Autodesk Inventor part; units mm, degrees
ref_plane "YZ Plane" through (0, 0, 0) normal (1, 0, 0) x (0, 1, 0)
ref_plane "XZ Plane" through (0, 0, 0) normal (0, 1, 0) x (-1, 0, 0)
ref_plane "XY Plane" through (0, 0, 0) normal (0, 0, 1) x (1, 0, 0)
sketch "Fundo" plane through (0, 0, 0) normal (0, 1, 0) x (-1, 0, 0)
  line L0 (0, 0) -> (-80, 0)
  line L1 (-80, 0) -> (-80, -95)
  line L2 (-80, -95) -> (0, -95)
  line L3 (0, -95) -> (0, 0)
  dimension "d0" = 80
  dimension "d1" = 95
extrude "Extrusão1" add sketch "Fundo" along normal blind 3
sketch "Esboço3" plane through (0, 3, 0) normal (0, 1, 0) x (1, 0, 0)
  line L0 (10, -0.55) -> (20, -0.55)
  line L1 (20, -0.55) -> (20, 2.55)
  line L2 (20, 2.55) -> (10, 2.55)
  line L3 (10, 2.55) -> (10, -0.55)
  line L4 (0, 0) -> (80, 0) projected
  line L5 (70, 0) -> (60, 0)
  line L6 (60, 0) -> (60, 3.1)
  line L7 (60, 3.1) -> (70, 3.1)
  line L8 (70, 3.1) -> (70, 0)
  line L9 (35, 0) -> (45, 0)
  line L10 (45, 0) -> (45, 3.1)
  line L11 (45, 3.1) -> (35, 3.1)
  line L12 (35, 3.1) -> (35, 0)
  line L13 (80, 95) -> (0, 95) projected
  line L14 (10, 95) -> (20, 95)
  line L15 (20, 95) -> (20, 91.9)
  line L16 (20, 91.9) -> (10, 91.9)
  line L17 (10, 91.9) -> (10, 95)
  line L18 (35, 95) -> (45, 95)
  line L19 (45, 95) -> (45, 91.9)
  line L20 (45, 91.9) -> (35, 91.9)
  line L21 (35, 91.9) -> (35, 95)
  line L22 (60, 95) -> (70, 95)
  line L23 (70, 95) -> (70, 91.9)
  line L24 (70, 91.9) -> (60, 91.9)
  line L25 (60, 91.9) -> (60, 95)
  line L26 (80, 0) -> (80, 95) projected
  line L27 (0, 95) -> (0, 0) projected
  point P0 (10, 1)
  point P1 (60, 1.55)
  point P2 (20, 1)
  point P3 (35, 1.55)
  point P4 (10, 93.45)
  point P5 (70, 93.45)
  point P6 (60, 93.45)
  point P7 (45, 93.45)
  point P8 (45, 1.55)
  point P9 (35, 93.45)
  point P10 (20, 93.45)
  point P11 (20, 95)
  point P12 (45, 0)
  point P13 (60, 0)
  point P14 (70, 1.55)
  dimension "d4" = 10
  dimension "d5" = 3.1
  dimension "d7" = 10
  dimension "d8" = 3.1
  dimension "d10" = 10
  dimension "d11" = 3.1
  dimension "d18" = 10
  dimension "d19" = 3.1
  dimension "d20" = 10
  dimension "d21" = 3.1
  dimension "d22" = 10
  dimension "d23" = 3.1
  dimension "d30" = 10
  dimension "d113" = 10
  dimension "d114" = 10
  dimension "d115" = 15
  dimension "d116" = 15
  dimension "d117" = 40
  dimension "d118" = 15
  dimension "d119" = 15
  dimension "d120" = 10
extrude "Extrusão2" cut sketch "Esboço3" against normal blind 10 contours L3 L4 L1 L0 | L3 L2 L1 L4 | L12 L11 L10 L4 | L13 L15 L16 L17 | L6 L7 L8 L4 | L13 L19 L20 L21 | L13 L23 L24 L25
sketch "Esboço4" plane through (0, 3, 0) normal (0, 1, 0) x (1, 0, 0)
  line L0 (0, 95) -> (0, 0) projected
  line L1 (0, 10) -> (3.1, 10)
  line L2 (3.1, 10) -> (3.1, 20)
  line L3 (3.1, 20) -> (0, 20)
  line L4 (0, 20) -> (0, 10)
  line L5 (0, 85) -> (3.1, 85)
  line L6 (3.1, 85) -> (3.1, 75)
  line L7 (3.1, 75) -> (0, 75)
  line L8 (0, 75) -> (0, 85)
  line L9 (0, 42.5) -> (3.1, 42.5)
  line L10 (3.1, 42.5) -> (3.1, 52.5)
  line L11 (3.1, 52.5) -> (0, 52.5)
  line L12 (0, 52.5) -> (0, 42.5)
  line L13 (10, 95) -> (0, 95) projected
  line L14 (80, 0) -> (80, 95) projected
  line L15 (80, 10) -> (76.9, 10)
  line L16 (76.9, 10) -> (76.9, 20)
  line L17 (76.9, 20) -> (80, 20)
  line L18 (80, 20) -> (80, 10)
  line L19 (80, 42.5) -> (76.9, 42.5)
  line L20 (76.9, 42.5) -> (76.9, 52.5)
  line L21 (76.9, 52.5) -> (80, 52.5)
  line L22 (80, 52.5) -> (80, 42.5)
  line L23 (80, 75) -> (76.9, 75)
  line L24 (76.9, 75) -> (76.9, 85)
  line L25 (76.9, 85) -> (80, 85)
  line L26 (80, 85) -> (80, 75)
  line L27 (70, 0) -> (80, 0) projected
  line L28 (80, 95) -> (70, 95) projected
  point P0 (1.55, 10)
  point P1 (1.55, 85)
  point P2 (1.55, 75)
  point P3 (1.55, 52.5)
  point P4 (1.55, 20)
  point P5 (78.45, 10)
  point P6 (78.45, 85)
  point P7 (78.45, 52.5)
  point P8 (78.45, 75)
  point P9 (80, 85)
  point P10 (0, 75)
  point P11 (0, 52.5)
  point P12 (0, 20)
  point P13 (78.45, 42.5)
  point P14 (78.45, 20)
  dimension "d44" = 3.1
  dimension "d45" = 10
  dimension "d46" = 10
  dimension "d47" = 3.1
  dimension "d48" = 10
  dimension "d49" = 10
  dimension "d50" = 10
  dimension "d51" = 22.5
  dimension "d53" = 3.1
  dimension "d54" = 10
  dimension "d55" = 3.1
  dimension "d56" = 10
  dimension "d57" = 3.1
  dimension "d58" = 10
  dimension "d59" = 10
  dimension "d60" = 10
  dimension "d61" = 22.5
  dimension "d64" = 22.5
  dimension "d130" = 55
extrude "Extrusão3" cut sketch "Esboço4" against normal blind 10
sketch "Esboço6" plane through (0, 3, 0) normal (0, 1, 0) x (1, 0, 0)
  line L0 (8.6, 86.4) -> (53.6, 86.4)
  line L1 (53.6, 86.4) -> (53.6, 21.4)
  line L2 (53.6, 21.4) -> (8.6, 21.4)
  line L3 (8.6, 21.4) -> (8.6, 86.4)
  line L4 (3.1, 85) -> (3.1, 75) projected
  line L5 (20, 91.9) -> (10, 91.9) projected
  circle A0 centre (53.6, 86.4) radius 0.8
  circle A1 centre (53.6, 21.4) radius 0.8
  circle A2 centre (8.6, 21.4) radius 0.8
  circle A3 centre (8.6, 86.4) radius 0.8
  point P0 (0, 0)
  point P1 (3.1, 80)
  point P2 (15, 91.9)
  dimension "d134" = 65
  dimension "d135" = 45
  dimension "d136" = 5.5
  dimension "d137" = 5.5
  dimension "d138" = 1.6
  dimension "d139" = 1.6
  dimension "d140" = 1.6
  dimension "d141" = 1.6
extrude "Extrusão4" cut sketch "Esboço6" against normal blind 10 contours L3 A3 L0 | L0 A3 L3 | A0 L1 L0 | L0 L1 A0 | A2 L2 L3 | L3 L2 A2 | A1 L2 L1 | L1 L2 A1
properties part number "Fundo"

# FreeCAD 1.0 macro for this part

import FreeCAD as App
import Part
import Sketcher
from FreeCAD import Vector


def add_polygon(sketch, points):
    """Adds a closed chain of lines whose ends are joined by coincident constraints."""
    first, n = sketch.GeometryCount, len(points)
    for a, b in zip(points, points[1:] + points[:1]):
        sketch.addGeometry(Part.LineSegment(App.Vector(*a, 0), App.Vector(*b, 0)), False)
    for i in range(n):
        sketch.addConstraint(Sketcher.Constraint("Coincident", first + i, 2, first + (i + 1) % n, 1))

doc = App.newDocument("Part")
body = doc.addObject("PartDesign::Body", "Body")

sketch1 = body.newObject("Sketcher::SketchObject", "Sketch")
sketch1.AttachmentSupport = (doc.getObject("XZ_Plane"), [""])
sketch1.MapMode = "FlatFace"
add_polygon(sketch1, [(0, -95), (0, 0), (80, 0), (80, -95)])
sketch1.addConstraint(Sketcher.Constraint("Vertical", 0))
sketch1.addConstraint(Sketcher.Constraint("Horizontal", 1))
sketch1.addConstraint(Sketcher.Constraint("Vertical", 2))
sketch1.addConstraint(Sketcher.Constraint("Horizontal", 3))
sketch1.addConstraint(Sketcher.Constraint("Coincident", 0, 2, -1, 1))
sketch1.addConstraint(Sketcher.Constraint("DistanceX", 1, 1, 1, 2, 80.0))
sketch1.addConstraint(Sketcher.Constraint("DistanceY", 0, 1, 0, 2, 95.0))
pad1 = body.newObject("PartDesign::Pad", "Pad")
pad1.Profile = sketch1
pad1.Length = 3
pad1.Reversed = True

sketch2 = body.newObject("Sketcher::SketchObject", "Sketch001")
sketch2.AttachmentSupport = (doc.getObject("XZ_Plane"), [""])
sketch2.MapMode = "FlatFace"
sketch2.AttachmentOffset = App.Placement(Vector(0, 0, -3), App.Rotation())
add_polygon(sketch2, [(10, 0.55), (20, 0.55), (20, -2.55), (10, -2.55)])
add_polygon(sketch2, [(35, -3.1), (35, 0), (45, 0), (45, -3.1)])
add_polygon(sketch2, [(20, -95), (10, -95), (10, -91.9), (20, -91.9)])
add_polygon(sketch2, [(60, -3.1), (60, 0), (70, 0), (70, -3.1)])
add_polygon(sketch2, [(45, -95), (35, -95), (35, -91.9), (45, -91.9)])
add_polygon(sketch2, [(70, -95), (60, -95), (60, -91.9), (70, -91.9)])
sketch2.addConstraint(Sketcher.Constraint("Horizontal", 0))
sketch2.addConstraint(Sketcher.Constraint("Vertical", 1))
sketch2.addConstraint(Sketcher.Constraint("Horizontal", 2))
sketch2.addConstraint(Sketcher.Constraint("Vertical", 3))
sketch2.addConstraint(Sketcher.Constraint("Vertical", 4))
sketch2.addConstraint(Sketcher.Constraint("Horizontal", 5))
sketch2.addConstraint(Sketcher.Constraint("Vertical", 6))
sketch2.addConstraint(Sketcher.Constraint("Horizontal", 7))
sketch2.addConstraint(Sketcher.Constraint("Horizontal", 8))
sketch2.addConstraint(Sketcher.Constraint("Vertical", 9))
sketch2.addConstraint(Sketcher.Constraint("Horizontal", 10))
sketch2.addConstraint(Sketcher.Constraint("Vertical", 11))
sketch2.addConstraint(Sketcher.Constraint("Vertical", 12))
sketch2.addConstraint(Sketcher.Constraint("Horizontal", 13))
sketch2.addConstraint(Sketcher.Constraint("Vertical", 14))
sketch2.addConstraint(Sketcher.Constraint("Horizontal", 15))
sketch2.addConstraint(Sketcher.Constraint("Horizontal", 16))
sketch2.addConstraint(Sketcher.Constraint("Vertical", 17))
sketch2.addConstraint(Sketcher.Constraint("Horizontal", 18))
sketch2.addConstraint(Sketcher.Constraint("Vertical", 19))
sketch2.addConstraint(Sketcher.Constraint("Horizontal", 20))
sketch2.addConstraint(Sketcher.Constraint("Vertical", 21))
sketch2.addConstraint(Sketcher.Constraint("Horizontal", 22))
sketch2.addConstraint(Sketcher.Constraint("Vertical", 23))
sketch2.addConstraint(Sketcher.Constraint("PointOnObject", 4, 2, -1))
sketch2.addConstraint(Sketcher.Constraint("PointOnObject", 12, 2, -1))
sketch2.addConstraint(Sketcher.Constraint("Horizontal", 7, 2, 14, 2))
sketch2.addConstraint(Sketcher.Constraint("Horizontal", 11, 2, 16, 2))
sketch2.addConstraint(Sketcher.Constraint("Horizontal", 10, 2, 17, 2))
sketch2.addConstraint(Sketcher.Constraint("Horizontal", 19, 2, 20, 2))
sketch2.addConstraint(Sketcher.Constraint("Horizontal", 18, 2, 21, 2))
sketch2.addConstraint(Sketcher.Constraint("Vertical", 3, 2, 8, 2))
sketch2.addConstraint(Sketcher.Constraint("Vertical", 1, 2, 10, 2))
sketch2.addConstraint(Sketcher.Constraint("Vertical", 7, 2, 16, 2))
sketch2.addConstraint(Sketcher.Constraint("Vertical", 6, 2, 18, 2))
sketch2.addConstraint(Sketcher.Constraint("Vertical", 15, 2, 20, 2))
sketch2.addConstraint(Sketcher.Constraint("Vertical", 14, 2, 22, 2))
sketch2.addConstraint(Sketcher.Constraint("Equal", 2, 5))
sketch2.addConstraint(Sketcher.Constraint("Equal", 10, 13))
sketch2.addConstraint(Sketcher.Constraint("Equal", 3, 4))
sketch2.addConstraint(Sketcher.Constraint("Equal", 6, 9))
sketch2.addConstraint(Sketcher.Constraint("DistanceX", 0, 1, 0, 2, 10.0))
sketch2.addConstraint(Sketcher.Constraint("DistanceY", 1, 2, 1, 1, 3.1))
sketch2.addConstraint(Sketcher.Constraint("DistanceX", -1, 1, 2, 2, 10.0))
sketch2.addConstraint(Sketcher.Constraint("DistanceX", 0, 2, 4, 2, 15.0))
sketch2.addConstraint(Sketcher.Constraint("DistanceX", 5, 2, 12, 2, 15.0))
sketch2.addConstraint(Sketcher.Constraint("DistanceY", 8, 2, -1, 1, 95.0))
sketch2.addConstraint(Sketcher.Constraint("DistanceY", -1, 1, 0, 2, 0.55))
pocket1 = body.newObject("PartDesign::Pocket", "Pocket")
pocket1.Profile = sketch2
pocket1.Length = 10
pocket1.Reversed = True

sketch3 = body.newObject("Sketcher::SketchObject", "Sketch002")
sketch3.AttachmentSupport = (doc.getObject("XZ_Plane"), [""])
sketch3.MapMode = "FlatFace"
sketch3.AttachmentOffset = App.Placement(Vector(0, 0, -3), App.Rotation())
add_polygon(sketch3, [(3.1, -85), (0, -85), (0, -75), (3.1, -75)])
add_polygon(sketch3, [(3.1, -20), (0, -20), (0, -10), (3.1, -10)])
add_polygon(sketch3, [(3.1, -52.5), (0, -52.5), (0, -42.5), (3.1, -42.5)])
add_polygon(sketch3, [(76.9, -10), (80, -10), (80, -20), (76.9, -20)])
add_polygon(sketch3, [(76.9, -75), (80, -75), (80, -85), (76.9, -85)])
add_polygon(sketch3, [(76.9, -42.5), (80, -42.5), (80, -52.5), (76.9, -52.5)])
sketch3.addConstraint(Sketcher.Constraint("Horizontal", 0))
sketch3.addConstraint(Sketcher.Constraint("Vertical", 1))
sketch3.addConstraint(Sketcher.Constraint("Horizontal", 2))
sketch3.addConstraint(Sketcher.Constraint("Vertical", 3))
sketch3.addConstraint(Sketcher.Constraint("Horizontal", 4))
sketch3.addConstraint(Sketcher.Constraint("Vertical", 5))
sketch3.addConstraint(Sketcher.Constraint("Horizontal", 6))
sketch3.addConstraint(Sketcher.Constraint("Vertical", 7))
sketch3.addConstraint(Sketcher.Constraint("Horizontal", 8))
sketch3.addConstraint(Sketcher.Constraint("Vertical", 9))
sketch3.addConstraint(Sketcher.Constraint("Horizontal", 10))
sketch3.addConstraint(Sketcher.Constraint("Vertical", 11))
sketch3.addConstraint(Sketcher.Constraint("Horizontal", 12))
sketch3.addConstraint(Sketcher.Constraint("Vertical", 13))
sketch3.addConstraint(Sketcher.Constraint("Horizontal", 14))
sketch3.addConstraint(Sketcher.Constraint("Vertical", 15))
sketch3.addConstraint(Sketcher.Constraint("Horizontal", 16))
sketch3.addConstraint(Sketcher.Constraint("Vertical", 17))
sketch3.addConstraint(Sketcher.Constraint("Horizontal", 18))
sketch3.addConstraint(Sketcher.Constraint("Vertical", 19))
sketch3.addConstraint(Sketcher.Constraint("Horizontal", 20))
sketch3.addConstraint(Sketcher.Constraint("Vertical", 21))
sketch3.addConstraint(Sketcher.Constraint("Horizontal", 22))
sketch3.addConstraint(Sketcher.Constraint("Vertical", 23))
sketch3.addConstraint(Sketcher.Constraint("PointOnObject", 0, 2, -2))
sketch3.addConstraint(Sketcher.Constraint("PointOnObject", 4, 2, -2))
sketch3.addConstraint(Sketcher.Constraint("PointOnObject", 8, 2, -2))
sketch3.addConstraint(Sketcher.Constraint("Horizontal", 6, 2, 12, 2))
sketch3.addConstraint(Sketcher.Constraint("Horizontal", 7, 2, 13, 2))
sketch3.addConstraint(Sketcher.Constraint("Horizontal", 2, 2, 16, 2))
sketch3.addConstraint(Sketcher.Constraint("Horizontal", 3, 2, 17, 2))
sketch3.addConstraint(Sketcher.Constraint("Horizontal", 10, 2, 20, 2))
sketch3.addConstraint(Sketcher.Constraint("Horizontal", 11, 2, 21, 2))
sketch3.addConstraint(Sketcher.Constraint("Vertical", 3, 2, 6, 2))
sketch3.addConstraint(Sketcher.Constraint("Vertical", 7, 2, 10, 2))
sketch3.addConstraint(Sketcher.Constraint("Vertical", 13, 2, 16, 2))
sketch3.addConstraint(Sketcher.Constraint("Vertical", 15, 2, 18, 2))
sketch3.addConstraint(Sketcher.Constraint("Vertical", 17, 2, 20, 2))
sketch3.addConstraint(Sketcher.Constraint("Vertical", 19, 2, 22, 2))
sketch3.addConstraint(Sketcher.Constraint("Equal", 10, 12))
sketch3.addConstraint(Sketcher.Constraint("Equal", 3, 5))
sketch3.addConstraint(Sketcher.Constraint("Equal", 7, 9))
sketch3.addConstraint(Sketcher.Constraint("DistanceY", 1, 1, 1, 2, 10.0))
sketch3.addConstraint(Sketcher.Constraint("DistanceX", 0, 2, 0, 1, 3.1))
sketch3.addConstraint(Sketcher.Constraint("DistanceY", 5, 2, -1, 1, 10.0))
sketch3.addConstraint(Sketcher.Constraint("DistanceY", 1, 2, 4, 2, 55.0))
sketch3.addConstraint(Sketcher.Constraint("DistanceY", 1, 2, 8, 2, 22.5))
sketch3.addConstraint(Sketcher.Constraint("DistanceX", -1, 1, 12, 2, 80.0))
pocket2 = body.newObject("PartDesign::Pocket", "Pocket001")
pocket2.Profile = sketch3
pocket2.Length = 10
pocket2.Reversed = True

sketch4 = body.newObject("Sketcher::SketchObject", "Sketch003")
sketch4.AttachmentSupport = (doc.getObject("XZ_Plane"), [""])
sketch4.MapMode = "FlatFace"
sketch4.AttachmentOffset = App.Placement(Vector(0, 0, -3), App.Rotation())
sketch4.addGeometry(Part.Circle(Vector(8.6, -86.4, 0), Vector(0, 0, 1), 0.8), False)
sketch4.addGeometry(Part.Circle(Vector(53.6, -86.4, 0), Vector(0, 0, 1), 0.8), False)
sketch4.addGeometry(Part.Circle(Vector(8.6, -21.4, 0), Vector(0, 0, 1), 0.8), False)
sketch4.addGeometry(Part.Circle(Vector(53.6, -21.4, 0), Vector(0, 0, 1), 0.8), False)
sketch4.addConstraint(Sketcher.Constraint("Equal", 0, 1))
sketch4.addConstraint(Sketcher.Constraint("Equal", 1, 2))
sketch4.addConstraint(Sketcher.Constraint("Equal", 2, 3))
sketch4.addConstraint(Sketcher.Constraint("Horizontal", 0, 3, 1, 3))
sketch4.addConstraint(Sketcher.Constraint("Horizontal", 2, 3, 3, 3))
sketch4.addConstraint(Sketcher.Constraint("Vertical", 0, 3, 2, 3))
sketch4.addConstraint(Sketcher.Constraint("Vertical", 1, 3, 3, 3))
sketch4.addConstraint(Sketcher.Constraint("Diameter", 0, 1.6))
sketch4.addConstraint(Sketcher.Constraint("DistanceX", 0, 3, 1, 3, 45.0))
sketch4.addConstraint(Sketcher.Constraint("DistanceY", 0, 3, 2, 3, 65.0))
sketch4.addConstraint(Sketcher.Constraint("DistanceX", -1, 1, 0, 3, 8.6))
sketch4.addConstraint(Sketcher.Constraint("DistanceY", 0, 3, -1, 1, 86.4))
pocket3 = body.newObject("PartDesign::Pocket", "Pocket002")
pocket3.Profile = sketch4
pocket3.Length = 10
pocket3.Reversed = True

doc.recompute()
